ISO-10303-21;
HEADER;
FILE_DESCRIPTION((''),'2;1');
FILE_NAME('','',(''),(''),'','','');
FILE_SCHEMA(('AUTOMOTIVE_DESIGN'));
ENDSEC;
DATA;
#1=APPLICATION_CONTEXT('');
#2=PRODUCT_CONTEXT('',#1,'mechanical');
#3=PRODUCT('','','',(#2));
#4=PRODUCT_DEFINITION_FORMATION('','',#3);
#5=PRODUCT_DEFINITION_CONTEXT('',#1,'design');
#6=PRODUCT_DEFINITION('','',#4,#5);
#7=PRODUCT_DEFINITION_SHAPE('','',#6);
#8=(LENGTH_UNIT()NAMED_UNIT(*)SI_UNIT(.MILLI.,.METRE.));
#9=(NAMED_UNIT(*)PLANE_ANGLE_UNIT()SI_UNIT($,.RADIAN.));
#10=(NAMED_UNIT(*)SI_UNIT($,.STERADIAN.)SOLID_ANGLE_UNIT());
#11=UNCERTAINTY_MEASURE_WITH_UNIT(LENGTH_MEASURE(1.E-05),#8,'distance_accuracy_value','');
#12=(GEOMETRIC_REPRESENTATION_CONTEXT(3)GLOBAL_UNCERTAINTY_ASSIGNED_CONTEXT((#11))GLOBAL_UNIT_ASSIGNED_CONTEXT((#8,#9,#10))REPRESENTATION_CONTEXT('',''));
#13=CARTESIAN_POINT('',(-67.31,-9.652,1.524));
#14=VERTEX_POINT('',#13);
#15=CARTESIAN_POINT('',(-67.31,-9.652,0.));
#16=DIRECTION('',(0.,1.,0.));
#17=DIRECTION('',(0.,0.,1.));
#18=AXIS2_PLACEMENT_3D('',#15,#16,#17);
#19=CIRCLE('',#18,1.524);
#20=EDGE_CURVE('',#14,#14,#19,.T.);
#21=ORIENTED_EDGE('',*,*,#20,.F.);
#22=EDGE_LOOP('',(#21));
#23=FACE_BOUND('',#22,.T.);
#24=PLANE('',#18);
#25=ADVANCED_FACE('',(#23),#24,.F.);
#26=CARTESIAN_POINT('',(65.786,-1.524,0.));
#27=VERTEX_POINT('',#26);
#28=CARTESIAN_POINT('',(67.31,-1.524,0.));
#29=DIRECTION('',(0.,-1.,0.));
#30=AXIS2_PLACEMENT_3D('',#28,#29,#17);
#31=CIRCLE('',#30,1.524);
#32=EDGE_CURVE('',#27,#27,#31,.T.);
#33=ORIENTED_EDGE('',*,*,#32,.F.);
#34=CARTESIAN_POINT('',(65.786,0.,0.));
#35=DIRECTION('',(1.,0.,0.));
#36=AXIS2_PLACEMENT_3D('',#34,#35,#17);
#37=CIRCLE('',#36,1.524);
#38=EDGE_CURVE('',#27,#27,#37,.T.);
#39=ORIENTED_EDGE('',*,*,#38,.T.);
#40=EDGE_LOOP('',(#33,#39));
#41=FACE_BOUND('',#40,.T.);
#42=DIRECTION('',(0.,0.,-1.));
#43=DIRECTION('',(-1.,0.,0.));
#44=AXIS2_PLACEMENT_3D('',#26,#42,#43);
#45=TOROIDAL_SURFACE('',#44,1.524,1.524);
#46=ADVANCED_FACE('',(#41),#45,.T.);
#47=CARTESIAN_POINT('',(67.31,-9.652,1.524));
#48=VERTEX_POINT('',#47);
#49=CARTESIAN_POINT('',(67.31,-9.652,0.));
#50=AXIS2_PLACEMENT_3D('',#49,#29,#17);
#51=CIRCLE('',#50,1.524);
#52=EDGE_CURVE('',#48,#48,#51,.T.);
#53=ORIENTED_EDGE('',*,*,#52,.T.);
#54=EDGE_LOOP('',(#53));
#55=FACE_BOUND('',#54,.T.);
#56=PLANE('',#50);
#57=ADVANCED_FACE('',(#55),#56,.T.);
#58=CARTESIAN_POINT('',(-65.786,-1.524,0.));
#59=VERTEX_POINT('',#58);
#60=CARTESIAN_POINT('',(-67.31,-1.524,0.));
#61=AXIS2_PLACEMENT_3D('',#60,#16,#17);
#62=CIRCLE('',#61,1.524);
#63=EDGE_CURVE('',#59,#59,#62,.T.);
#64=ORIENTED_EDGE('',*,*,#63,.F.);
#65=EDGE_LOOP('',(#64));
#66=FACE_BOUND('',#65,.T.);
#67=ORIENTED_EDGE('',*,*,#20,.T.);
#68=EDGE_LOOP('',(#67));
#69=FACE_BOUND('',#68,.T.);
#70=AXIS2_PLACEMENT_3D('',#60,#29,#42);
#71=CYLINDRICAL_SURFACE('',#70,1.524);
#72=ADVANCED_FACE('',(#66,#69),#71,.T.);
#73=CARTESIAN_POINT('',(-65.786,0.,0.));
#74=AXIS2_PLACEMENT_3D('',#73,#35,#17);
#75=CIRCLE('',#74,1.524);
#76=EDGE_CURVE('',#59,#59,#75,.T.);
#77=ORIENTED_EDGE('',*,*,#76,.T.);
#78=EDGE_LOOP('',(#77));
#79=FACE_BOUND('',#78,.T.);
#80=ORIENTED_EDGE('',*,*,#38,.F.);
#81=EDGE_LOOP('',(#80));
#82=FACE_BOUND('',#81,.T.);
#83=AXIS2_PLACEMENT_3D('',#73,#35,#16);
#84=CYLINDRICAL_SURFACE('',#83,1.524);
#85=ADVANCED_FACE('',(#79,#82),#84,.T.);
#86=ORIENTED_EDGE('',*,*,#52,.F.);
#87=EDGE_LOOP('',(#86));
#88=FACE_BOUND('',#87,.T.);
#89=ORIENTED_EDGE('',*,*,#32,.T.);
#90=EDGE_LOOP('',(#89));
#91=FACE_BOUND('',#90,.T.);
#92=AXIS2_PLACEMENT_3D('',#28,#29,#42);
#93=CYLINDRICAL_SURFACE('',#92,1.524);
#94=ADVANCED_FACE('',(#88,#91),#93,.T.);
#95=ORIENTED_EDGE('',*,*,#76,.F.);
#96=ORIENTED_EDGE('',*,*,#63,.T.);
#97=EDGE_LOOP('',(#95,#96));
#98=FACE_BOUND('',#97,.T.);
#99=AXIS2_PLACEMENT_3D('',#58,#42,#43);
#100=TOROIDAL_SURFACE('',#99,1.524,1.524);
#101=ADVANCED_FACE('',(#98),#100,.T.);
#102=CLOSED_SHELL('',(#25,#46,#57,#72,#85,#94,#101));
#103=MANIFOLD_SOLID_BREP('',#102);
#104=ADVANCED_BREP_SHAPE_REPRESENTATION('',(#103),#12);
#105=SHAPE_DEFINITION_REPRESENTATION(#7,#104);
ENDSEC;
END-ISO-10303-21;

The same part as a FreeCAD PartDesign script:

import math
import FreeCAD as App
import Part
import Sketcher
from FreeCAD import Vector
Q = App.Units.Quantity

doc = App.newDocument("Part")
body = doc.addObject("PartDesign::Body", "Body")

# Sketch on XZ plane
sketch1 = body.newObject("Sketcher::SketchObject", "Sketch")
sketch1.AttachmentSupport = (doc.getObject("XZ_Plane"), [""])
sketch1.MapMode = "FlatFace"
sketch1.AttachmentOffset = App.Placement(Vector(0, 0, 0.38 * 25.4), App.Rotation())
sketch1.addGeometry(Part.Circle(Vector(-67.31, 0, 0), Vector(0, 0, 1), 1.524), False)
sketch1.addConstraint([
    Sketcher.Constraint("PointOnObject", 0, 3, -1),
    Sketcher.Constraint("Diameter", 0, Q("0.12 in")),
    Sketcher.Constraint("DistanceX", 0, 3, -1, 1, Q("2.65 in")),
])

# Sketch on XY plane
sketch2 = body.newObject("Sketcher::SketchObject", "Sketch001")
sketch2.AttachmentSupport = (doc.getObject("XY_Plane"), [""])
sketch2.MapMode = "FlatFace"
sketch2.addGeometry([
    Part.LineSegment(Vector(-67.31, -9.652, 0), Vector(-67.31, -1.524, 0)),  # 0
    Part.ArcOfCircle(Part.Circle(Vector(-65.786, -1.524, 0), Vector(0, 0, 1), 1.524), math.radians(90), math.radians(180)),  # 1
    Part.LineSegment(Vector(-65.786, 0, 0), Vector(65.786, 0, 0)),  # 2
    Part.ArcOfCircle(Part.Circle(Vector(65.786, -1.524, 0), Vector(0, 0, 1), 1.524), math.radians(0), math.radians(90)),  # 3
    Part.LineSegment(Vector(67.31, -1.524, 0), Vector(67.31, -9.652, 0)),  # 4
], False)
sketch2.addConstraint([
    Sketcher.Constraint("Tangent", 0, 2, 1, 2),
    Sketcher.Constraint("Tangent", 1, 1, 2, 1),
    Sketcher.Constraint("Tangent", 2, 2, 3, 2),
    Sketcher.Constraint("Tangent", 3, 1, 4, 1),
    Sketcher.Constraint("Vertical", 0),
    Sketcher.Constraint("Horizontal", 2),
    Sketcher.Constraint("Vertical", 4),
    Sketcher.Constraint("Equal", 1, 3),
    Sketcher.Constraint("Symmetric", 1, 1, 2, 2, -1, 1),
    Sketcher.Constraint("Horizontal", 0, 1, 4, 2),
    Sketcher.Constraint("Radius", 1, Q("0.06 in")),
    Sketcher.Constraint("DistanceX", 2, 1, 2, 2, Q("5.18 in")),
    Sketcher.Constraint("DistanceY", 0, 1, 0, 2, Q("0.32 in")),
])
doc.recompute()

additivepipe = body.newObject("PartDesign::AdditivePipe", "AdditivePipe")
additivepipe.Profile = sketch1
additivepipe.Spine = (sketch2, ["Edge1", "Edge2", "Edge3", "Edge4", "Edge5"])

doc.recompute()
